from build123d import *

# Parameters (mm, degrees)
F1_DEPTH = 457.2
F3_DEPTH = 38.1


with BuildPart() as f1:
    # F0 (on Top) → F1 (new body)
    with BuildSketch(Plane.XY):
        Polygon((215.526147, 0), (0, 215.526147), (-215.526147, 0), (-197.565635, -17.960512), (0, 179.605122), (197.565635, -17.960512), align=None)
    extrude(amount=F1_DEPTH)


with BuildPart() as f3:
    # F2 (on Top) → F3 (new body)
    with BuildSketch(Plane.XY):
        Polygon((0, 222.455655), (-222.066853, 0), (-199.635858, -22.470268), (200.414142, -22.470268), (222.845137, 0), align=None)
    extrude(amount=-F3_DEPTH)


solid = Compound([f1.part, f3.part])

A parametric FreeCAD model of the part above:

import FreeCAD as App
import Part
import Sketcher
Q = App.Units.Quantity


def add_polygon(sketch, points):
    """Adds a closed chain of lines whose ends are joined by coincident constraints."""
    first, n = sketch.GeometryCount, len(points)
    for a, b in zip(points, points[1:] + points[:1]):
        sketch.addGeometry(Part.LineSegment(App.Vector(*a, 0), App.Vector(*b, 0)), False)
    for i in range(n):
        sketch.addConstraint(Sketcher.Constraint("Coincident", first + i, 2, first + (i + 1) % n, 1))

doc = App.newDocument("Part")
body = doc.addObject("PartDesign::Body", "Body")

sketch1 = body.newObject("Sketcher::SketchObject", "Sketch")
sketch1.AttachmentSupport = (doc.getObject("XY_Plane"), [""])
sketch1.MapMode = "FlatFace"
add_polygon(sketch1, [(216, 0), (0, 216), (-216, 0), (-198, -18), (0, 180), (198, -18)])
sketch1.addConstraint([
    Sketcher.Constraint("Symmetric", 1, 2, 5, 2, -1, 1),
    Sketcher.Constraint("Symmetric", 2, 2, 4, 2, -2),
    Sketcher.Constraint("PointOnObject", 0, 2, -2),
    Sketcher.Constraint("PointOnObject", 1, 2, -1),
    Sketcher.Constraint("PointOnObject", 3, 2, -2),
    Sketcher.Constraint("Perpendicular", 0, 1),
    Sketcher.Constraint("Perpendicular", 1, 2),
    Sketcher.Constraint("Perpendicular", 2, 3),
    Sketcher.Constraint("Distance", 0, Q("12 in")),
    Sketcher.Constraint("Distance", 2, Q("1 in")),
])
pad1 = body.newObject("PartDesign::Pad", "Pad")
pad1.Profile = sketch1
pad1.Length = Q("18 in")
body2 = doc.addObject("PartDesign::Body", "Body001")

sketch2 = body2.newObject("Sketcher::SketchObject", "Sketch001")
sketch2.AttachmentSupport = (doc.getObject("XY_Plane001"), [""])
sketch2.MapMode = "FlatFace"
add_polygon(sketch2, [(0, 222), (-222, 0), (-200, -22), (200, -22), (223, 0)])
sketch2.addConstraint([
    Sketcher.Constraint("Horizontal", 2),
    Sketcher.Constraint("PointOnObject", 0, 2, -1),
    Sketcher.Constraint("PointOnObject", 3, 2, -1),
    Sketcher.Constraint("PointOnObject", 4, 2, -2),
    Sketcher.Constraint("Parallel", 0, 3),
    Sketcher.Constraint("Perpendicular", 3, 4),
    Sketcher.Constraint("Equal", 1, 3),
    Sketcher.Constraint("DistanceX", 2, 1, 2, 2, Q("15.75 in")),
    Sketcher.Constraint("Distance", 1, Q("1.25 in")),
    Sketcher.Constraint("Distance", 0, Q("12.375 in")),
])
pad2 = body2.newObject("PartDesign::Pad", "Pad001")
pad2.Profile = sketch2
pad2.Length = Q("1.5 in")
pad2.Reversed = True

doc.recompute()
